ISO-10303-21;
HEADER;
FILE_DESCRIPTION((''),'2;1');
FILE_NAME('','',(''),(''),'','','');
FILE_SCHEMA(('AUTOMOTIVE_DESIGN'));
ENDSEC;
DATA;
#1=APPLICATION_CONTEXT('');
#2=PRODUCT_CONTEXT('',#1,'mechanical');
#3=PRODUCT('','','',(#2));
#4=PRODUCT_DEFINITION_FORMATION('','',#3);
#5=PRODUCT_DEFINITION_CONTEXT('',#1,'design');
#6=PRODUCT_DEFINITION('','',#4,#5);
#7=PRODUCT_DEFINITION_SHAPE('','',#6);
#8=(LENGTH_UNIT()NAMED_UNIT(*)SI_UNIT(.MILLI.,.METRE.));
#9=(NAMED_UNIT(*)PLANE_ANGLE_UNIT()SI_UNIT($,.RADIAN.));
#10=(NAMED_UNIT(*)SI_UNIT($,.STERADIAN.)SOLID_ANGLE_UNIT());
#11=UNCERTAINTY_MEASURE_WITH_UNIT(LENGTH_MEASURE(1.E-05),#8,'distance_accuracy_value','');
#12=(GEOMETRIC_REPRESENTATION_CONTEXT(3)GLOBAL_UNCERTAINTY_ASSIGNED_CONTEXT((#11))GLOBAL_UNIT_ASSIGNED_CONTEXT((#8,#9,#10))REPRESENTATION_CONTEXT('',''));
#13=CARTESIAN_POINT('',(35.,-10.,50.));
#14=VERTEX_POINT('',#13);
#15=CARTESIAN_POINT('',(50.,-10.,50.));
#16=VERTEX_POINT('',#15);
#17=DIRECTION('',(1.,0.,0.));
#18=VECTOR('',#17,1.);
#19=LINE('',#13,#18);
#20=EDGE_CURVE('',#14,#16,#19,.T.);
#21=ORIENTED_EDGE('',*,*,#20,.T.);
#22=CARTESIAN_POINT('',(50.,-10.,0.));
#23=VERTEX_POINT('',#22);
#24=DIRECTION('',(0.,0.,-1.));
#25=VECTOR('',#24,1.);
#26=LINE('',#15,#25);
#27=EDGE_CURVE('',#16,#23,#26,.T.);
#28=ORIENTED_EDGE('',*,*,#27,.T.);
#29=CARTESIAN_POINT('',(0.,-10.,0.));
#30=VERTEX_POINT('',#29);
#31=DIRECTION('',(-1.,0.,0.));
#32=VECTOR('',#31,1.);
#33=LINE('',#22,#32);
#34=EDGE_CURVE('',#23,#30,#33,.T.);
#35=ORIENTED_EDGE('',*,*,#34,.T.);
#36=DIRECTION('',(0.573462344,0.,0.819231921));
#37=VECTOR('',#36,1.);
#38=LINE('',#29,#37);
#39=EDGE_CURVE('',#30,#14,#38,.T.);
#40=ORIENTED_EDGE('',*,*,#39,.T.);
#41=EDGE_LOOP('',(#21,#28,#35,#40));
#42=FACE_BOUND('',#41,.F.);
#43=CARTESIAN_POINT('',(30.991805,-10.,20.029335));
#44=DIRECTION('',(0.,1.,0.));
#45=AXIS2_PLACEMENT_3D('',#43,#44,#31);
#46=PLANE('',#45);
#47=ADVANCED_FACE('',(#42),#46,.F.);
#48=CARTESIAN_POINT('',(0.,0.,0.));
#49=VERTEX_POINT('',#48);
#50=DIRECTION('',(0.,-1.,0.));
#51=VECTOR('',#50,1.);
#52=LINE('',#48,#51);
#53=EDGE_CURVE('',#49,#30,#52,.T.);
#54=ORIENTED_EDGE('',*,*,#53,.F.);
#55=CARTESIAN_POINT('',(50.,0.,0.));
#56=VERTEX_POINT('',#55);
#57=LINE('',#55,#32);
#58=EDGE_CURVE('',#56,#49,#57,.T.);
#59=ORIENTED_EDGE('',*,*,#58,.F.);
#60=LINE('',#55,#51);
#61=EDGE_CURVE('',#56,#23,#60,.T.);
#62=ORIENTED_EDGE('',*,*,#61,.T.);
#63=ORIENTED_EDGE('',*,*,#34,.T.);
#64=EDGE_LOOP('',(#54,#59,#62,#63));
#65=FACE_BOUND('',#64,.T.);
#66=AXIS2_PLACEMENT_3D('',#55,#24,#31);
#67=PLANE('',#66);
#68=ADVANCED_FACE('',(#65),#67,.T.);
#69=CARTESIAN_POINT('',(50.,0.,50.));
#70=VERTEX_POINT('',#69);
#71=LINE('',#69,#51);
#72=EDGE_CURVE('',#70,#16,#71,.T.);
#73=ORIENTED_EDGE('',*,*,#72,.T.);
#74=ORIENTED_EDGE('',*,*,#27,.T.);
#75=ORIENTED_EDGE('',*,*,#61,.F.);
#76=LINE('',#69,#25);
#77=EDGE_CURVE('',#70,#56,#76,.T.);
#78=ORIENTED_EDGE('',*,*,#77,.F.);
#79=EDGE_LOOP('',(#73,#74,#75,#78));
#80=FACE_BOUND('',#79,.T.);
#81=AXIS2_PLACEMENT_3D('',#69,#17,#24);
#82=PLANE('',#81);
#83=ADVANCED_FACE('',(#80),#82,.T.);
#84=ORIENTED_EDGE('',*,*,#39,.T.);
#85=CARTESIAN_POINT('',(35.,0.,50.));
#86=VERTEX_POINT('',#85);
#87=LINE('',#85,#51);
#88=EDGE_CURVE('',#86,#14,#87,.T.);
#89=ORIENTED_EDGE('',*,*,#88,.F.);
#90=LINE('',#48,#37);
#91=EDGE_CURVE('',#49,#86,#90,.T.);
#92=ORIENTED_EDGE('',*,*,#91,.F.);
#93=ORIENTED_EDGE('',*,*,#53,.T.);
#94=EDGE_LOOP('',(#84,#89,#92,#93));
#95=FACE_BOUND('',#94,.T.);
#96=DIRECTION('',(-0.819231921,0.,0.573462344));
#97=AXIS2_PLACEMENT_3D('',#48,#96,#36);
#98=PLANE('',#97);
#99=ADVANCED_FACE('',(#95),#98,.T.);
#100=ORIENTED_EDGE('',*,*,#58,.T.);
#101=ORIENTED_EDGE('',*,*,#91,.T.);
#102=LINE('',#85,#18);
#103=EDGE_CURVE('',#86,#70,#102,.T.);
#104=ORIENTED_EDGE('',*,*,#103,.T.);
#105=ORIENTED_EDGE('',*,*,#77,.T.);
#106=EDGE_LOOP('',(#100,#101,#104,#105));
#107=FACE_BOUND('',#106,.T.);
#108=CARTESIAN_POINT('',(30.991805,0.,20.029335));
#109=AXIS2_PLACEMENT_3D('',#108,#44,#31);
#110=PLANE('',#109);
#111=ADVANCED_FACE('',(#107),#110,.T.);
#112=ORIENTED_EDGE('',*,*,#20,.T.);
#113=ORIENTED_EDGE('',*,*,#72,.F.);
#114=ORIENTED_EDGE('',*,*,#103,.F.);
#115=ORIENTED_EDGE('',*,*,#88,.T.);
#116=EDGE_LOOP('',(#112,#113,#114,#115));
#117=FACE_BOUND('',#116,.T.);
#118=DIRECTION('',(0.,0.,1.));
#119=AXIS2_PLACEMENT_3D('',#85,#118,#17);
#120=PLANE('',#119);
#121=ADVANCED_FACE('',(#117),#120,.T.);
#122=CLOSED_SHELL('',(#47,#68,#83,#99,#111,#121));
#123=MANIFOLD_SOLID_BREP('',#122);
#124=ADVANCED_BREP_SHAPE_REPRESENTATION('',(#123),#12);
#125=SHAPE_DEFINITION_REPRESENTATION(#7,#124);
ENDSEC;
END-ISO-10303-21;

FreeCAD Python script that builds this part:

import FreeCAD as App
import Part
import Sketcher
from FreeCAD import Vector

doc = App.newDocument("Part")
body = doc.addObject("PartDesign::Body", "Body")

# Sketch on XZ plane
sketch1 = body.newObject("Sketcher::SketchObject", "Sketch")
sketch1.AttachmentSupport = (doc.getObject("XZ_Plane"), [""])
sketch1.MapMode = "FlatFace"
sketch1.addGeometry([
    Part.LineSegment(Vector(35, 50, 0), Vector(0, 0, 0)),
    Part.LineSegment(Vector(0, 0, 0), Vector(50, 0, 0)),
    Part.LineSegment(Vector(50, 0, 0), Vector(50, 50, 0)),
    Part.LineSegment(Vector(50, 50, 0), Vector(35, 50, 0)),
], False)
sketch1.addConstraint([
    Sketcher.Constraint("Coincident", 0, 2, 1, 1),
    Sketcher.Constraint("Coincident", 1, 2, 2, 1),
    Sketcher.Constraint("Coincident", 2, 2, 3, 1),
    Sketcher.Constraint("Coincident", 3, 2, 0, 1),
    Sketcher.Constraint("Horizontal", 1),
    Sketcher.Constraint("Vertical", 2),
    Sketcher.Constraint("Horizontal", 3),
    Sketcher.Constraint("Coincident", 0, 2, -1, 1),
    Sketcher.Constraint("Equal", 1, 2),
    Sketcher.Constraint("DistanceX", 1, 1, 1, 2, 50.0),
    Sketcher.Constraint("DistanceX", 3, 2, 3, 1, 15.0),
])
pad1 = body.newObject("PartDesign::Pad", "Pad")
pad1.Profile = sketch1
pad1.Length = 10

doc.recompute()
